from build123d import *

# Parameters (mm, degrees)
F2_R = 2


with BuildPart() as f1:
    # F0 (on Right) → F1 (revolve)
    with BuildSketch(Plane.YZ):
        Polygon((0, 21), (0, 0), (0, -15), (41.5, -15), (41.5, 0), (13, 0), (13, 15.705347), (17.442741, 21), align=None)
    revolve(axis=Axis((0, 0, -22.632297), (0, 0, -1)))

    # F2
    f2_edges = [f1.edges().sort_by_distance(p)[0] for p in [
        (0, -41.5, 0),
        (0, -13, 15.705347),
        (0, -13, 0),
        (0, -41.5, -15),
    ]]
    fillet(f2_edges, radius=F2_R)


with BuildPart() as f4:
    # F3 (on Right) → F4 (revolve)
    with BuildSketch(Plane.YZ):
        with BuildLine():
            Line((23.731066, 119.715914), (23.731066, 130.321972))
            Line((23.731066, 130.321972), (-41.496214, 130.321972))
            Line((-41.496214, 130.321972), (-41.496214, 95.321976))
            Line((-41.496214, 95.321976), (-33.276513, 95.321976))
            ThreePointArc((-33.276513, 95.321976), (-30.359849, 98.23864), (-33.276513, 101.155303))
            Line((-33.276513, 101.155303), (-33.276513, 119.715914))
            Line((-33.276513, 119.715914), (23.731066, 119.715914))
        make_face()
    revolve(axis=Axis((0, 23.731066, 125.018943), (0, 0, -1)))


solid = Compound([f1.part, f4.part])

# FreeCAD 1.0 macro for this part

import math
import FreeCAD as App
import Part
import Sketcher
Q = App.Units.Quantity


def edges_at(feature, points):
    """Names of the edges that pass closest to the given points."""
    edges = feature.Shape.Edges
    near = lambda p: min(range(len(edges)), key=lambda i: edges[i].distToShape(Part.Vertex(*p))[0])
    return sorted({f"Edge{near(p) + 1}" for p in points})

doc = App.newDocument("Part")
body = doc.addObject("PartDesign::Body", "Body")

sketch1 = doc.addObject("Sketcher::SketchObject", "Sketch")
body.addObject(sketch1)
sketch1.AttachmentSupport = (doc.YZ_Plane, [""])
sketch1.MapMode = "FlatFace"
sketch1.addGeometry([
    Part.LineSegment(App.Vector(0, 21, 0), App.Vector(0, -15, 0)),
    Part.LineSegment(App.Vector(0, -15, 0), App.Vector(41.5, -15, 0)),
    Part.LineSegment(App.Vector(41.5, -15, 0), App.Vector(41.5, 0, 0)),
    Part.LineSegment(App.Vector(41.5, 0, 0), App.Vector(13, 0, 0)),
    Part.LineSegment(App.Vector(13, 0, 0), App.Vector(13, 15.705347, 0)),
    Part.LineSegment(App.Vector(13, 15.705347, 0), App.Vector(17.442741, 21, 0)),
    Part.LineSegment(App.Vector(17.442741, 21, 0), App.Vector(0, 21, 0)),
], False)
sketch1.addConstraint([
    Sketcher.Constraint("Coincident", 0, 2, 1, 1),
    Sketcher.Constraint("Coincident", 1, 2, 2, 1),
    Sketcher.Constraint("Coincident", 2, 2, 3, 1),
    Sketcher.Constraint("Coincident", 3, 2, 4, 1),
    Sketcher.Constraint("Coincident", 4, 2, 5, 1),
    Sketcher.Constraint("Coincident", 5, 2, 6, 1),
    Sketcher.Constraint("Coincident", 6, 2, 0, 1),
    Sketcher.Constraint("Vertical", 0),
    Sketcher.Constraint("Horizontal", 1),
    Sketcher.Constraint("Vertical", 2),
    Sketcher.Constraint("Horizontal", 3),
    Sketcher.Constraint("Vertical", 4),
    Sketcher.Constraint("Horizontal", 6),
    Sketcher.Constraint("PointOnObject", 0, 2, -2),
    Sketcher.Constraint("PointOnObject", 2, 2, -1),
    Sketcher.Constraint("DistanceY", 0, 2, 0, 1, 36.0),
    Sketcher.Constraint("DistanceY", 2, 1, 2, 2, 15.0),
    Sketcher.Constraint("Angle", 5, Q("50.000002 deg")),
    Sketcher.Constraint("DistanceX", 1, 1, 1, 2, 41.5),
    Sketcher.Constraint("DistanceX", 3, 2, 3, 1, 28.5),
    Sketcher.Constraint("DistanceX", 6, 2, 6, 1, 17.442741),
])
revolution = doc.addObject("PartDesign::Revolution", "Revolution")
body.addObject(revolution)
revolution.Profile = sketch1
revolution.ReferenceAxis = (sketch1, ["V_Axis"])
revolution.Angle = 360
doc.recompute()

fillet = doc.addObject("PartDesign::Fillet", "Fillet")
body.addObject(fillet)
fillet.Base = (revolution, edges_at(revolution, [
    (0, -41.5, 0),
    (0, -13, 15.705),
    (0, -13, 0),
    (0, -41.5, -15),
]))
fillet.Radius = 2
body2 = doc.addObject("PartDesign::Body", "Body001")

sketch2 = doc.addObject("Sketcher::SketchObject", "Sketch001")
body2.addObject(sketch2)
sketch2.AttachmentSupport = (doc.getObject("YZ_Plane001"), [""])
sketch2.MapMode = "FlatFace"
sketch2.addGeometry([
    Part.LineSegment(App.Vector(23.731066, 119.715914, 0), App.Vector(23.731066, 130.321972, 0)),
    Part.LineSegment(App.Vector(23.731066, 130.321972, 0), App.Vector(-41.496214, 130.321972, 0)),
    Part.LineSegment(App.Vector(-41.496214, 130.321972, 0), App.Vector(-41.496214, 95.321976, 0)),
    Part.LineSegment(App.Vector(-41.496214, 95.321976, 0), App.Vector(-33.276513, 95.321976, 0)),
    Part.ArcOfCircle(Part.Circle(App.Vector(-33.276513, 98.23864, 0), App.Vector(0, 0, 1), 2.916663), math.radians(-90.00001), math.radians(90.00001)),
    Part.LineSegment(App.Vector(-33.276513, 101.155303, 0), App.Vector(-33.276513, 119.715914, 0)),
    Part.LineSegment(App.Vector(-33.276513, 119.715914, 0), App.Vector(23.731066, 119.715914, 0)),
], False)
sketch2.addGeometry(Part.LineSegment(App.Vector(23.731066, 130.321972, 0), App.Vector(23.731066, 95.321976, 0)), True)
sketch2.addConstraint([
    Sketcher.Constraint("Coincident", 0, 2, 1, 1),
    Sketcher.Constraint("Coincident", 1, 2, 2, 1),
    Sketcher.Constraint("Coincident", 2, 2, 3, 1),
    Sketcher.Constraint("Tangent", 3, 2, 4, 1),
    Sketcher.Constraint("Coincident", 4, 2, 5, 1),
    Sketcher.Constraint("Coincident", 5, 2, 6, 1),
    Sketcher.Constraint("Coincident", 6, 2, 0, 1),
    Sketcher.Constraint("Vertical", 0),
    Sketcher.Constraint("Horizontal", 1),
    Sketcher.Constraint("Vertical", 2),
    Sketcher.Constraint("Horizontal", 3),
    Sketcher.Constraint("Vertical", 5),
    Sketcher.Constraint("Horizontal", 6),
    Sketcher.Constraint("Vertical", 7),
    Sketcher.Constraint("Coincident", 7, 1, 0, 2),
    Sketcher.Constraint("Horizontal", 3, 2, 7, 2),
    Sketcher.Constraint("Vertical", 3, 2, 4, 2),
    Sketcher.Constraint("DistanceX", 3, 1, 3, 2, 8.219701),
    Sketcher.Constraint("Radius", 4, 2.916663),
    Sketcher.Constraint("DistanceX", 1, 2, 1, 1, 65.22728),
    Sketcher.Constraint("DistanceY", 5, 1, 5, 2, 18.560611),
    Sketcher.Constraint("DistanceY", 0, 1, 0, 2, 10.606058),
    Sketcher.Constraint("DistanceY", -1, 1, 4, 3, 98.23864),
    Sketcher.Constraint("DistanceX", 4, 3, -1, 1, 33.276513),
])
revolution2 = doc.addObject("PartDesign::Revolution", "Revolution001")
body2.addObject(revolution2)
revolution2.Profile = sketch2
revolution2.ReferenceAxis = (sketch2, ["Axis0"])
revolution2.Angle = 360

doc.recompute()
